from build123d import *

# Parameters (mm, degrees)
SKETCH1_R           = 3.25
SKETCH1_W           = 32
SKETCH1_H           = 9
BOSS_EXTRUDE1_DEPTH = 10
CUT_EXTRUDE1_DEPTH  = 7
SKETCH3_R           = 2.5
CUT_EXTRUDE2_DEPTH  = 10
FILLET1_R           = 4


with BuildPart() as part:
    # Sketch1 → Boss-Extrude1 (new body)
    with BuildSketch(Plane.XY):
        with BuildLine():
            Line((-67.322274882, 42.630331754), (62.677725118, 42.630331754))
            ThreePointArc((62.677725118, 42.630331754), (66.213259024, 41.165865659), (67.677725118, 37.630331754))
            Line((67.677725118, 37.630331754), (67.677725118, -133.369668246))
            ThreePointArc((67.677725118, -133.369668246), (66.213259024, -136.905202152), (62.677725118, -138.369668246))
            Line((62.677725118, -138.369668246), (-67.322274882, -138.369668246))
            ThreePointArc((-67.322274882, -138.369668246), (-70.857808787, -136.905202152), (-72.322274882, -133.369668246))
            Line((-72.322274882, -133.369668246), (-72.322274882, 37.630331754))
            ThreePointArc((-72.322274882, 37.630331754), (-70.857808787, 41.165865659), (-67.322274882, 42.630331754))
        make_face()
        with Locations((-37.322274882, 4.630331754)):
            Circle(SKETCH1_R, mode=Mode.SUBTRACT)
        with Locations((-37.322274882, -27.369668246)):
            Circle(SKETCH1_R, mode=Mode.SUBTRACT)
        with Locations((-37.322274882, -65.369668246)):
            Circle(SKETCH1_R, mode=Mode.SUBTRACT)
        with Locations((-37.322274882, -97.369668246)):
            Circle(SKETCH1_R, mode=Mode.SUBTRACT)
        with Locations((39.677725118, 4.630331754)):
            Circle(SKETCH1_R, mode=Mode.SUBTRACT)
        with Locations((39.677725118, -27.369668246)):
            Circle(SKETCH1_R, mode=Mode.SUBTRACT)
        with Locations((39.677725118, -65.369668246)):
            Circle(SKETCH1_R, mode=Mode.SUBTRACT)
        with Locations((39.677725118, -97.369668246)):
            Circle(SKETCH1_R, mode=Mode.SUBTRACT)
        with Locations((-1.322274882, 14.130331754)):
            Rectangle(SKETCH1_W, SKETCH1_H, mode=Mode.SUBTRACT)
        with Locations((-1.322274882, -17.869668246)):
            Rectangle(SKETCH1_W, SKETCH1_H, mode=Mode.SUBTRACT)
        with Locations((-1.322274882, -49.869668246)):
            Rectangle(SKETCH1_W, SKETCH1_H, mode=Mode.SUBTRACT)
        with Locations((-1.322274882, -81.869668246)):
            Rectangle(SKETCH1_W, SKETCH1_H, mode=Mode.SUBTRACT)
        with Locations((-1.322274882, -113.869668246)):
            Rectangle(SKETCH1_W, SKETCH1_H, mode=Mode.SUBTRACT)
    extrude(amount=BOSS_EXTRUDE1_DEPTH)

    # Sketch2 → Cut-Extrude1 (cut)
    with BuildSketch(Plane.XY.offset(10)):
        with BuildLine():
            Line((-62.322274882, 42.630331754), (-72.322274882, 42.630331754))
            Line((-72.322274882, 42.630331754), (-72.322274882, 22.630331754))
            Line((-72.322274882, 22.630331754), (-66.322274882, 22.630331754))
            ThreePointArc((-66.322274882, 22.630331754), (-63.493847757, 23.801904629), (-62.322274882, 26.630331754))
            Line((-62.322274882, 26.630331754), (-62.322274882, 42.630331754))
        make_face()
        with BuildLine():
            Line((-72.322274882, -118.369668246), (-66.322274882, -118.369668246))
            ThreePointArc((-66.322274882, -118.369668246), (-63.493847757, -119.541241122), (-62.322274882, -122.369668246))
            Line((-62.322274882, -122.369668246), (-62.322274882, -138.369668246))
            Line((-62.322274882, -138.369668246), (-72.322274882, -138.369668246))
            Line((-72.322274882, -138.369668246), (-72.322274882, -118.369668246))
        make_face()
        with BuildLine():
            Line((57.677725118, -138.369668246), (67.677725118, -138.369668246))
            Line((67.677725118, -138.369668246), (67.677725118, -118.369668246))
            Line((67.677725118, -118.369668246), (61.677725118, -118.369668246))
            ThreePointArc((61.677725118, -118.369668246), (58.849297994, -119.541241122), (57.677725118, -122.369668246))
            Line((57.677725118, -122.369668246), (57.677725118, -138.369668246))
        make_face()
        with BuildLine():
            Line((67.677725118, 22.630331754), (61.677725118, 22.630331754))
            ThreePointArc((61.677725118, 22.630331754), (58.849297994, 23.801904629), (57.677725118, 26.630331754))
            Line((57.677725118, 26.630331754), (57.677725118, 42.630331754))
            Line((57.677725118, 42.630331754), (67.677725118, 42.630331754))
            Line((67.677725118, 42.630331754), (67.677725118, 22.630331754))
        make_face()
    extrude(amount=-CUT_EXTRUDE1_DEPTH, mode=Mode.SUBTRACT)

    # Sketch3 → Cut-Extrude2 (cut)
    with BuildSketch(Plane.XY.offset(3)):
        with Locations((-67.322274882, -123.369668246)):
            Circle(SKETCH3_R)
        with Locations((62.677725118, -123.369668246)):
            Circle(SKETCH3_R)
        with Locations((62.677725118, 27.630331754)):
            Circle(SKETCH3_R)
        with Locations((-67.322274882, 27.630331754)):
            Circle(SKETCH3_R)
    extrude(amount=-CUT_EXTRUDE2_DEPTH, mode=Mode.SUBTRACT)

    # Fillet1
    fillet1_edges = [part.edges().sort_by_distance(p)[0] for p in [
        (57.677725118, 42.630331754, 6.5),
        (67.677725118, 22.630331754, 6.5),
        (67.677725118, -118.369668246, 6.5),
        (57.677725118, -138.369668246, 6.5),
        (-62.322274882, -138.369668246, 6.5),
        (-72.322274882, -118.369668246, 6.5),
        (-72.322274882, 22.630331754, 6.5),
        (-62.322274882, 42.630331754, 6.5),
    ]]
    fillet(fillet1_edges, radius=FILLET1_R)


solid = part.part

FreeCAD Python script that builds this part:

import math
import FreeCAD as App
import Part
import Sketcher

V = App.Vector


def edges_at(feature, points):
    """Names of the edges that pass closest to the given points."""
    edges = feature.Shape.Edges
    near = lambda p: min(range(len(edges)), key=lambda i: edges[i].distToShape(Part.Vertex(*p))[0])
    return sorted({f"Edge{near(p) + 1}" for p in points})


def add_polygon(sketch, points):
    """Adds a closed chain of lines whose ends are joined by coincident constraints."""
    first, n = sketch.GeometryCount, len(points)
    for a, b in zip(points, points[1:] + points[:1]):
        sketch.addGeometry(Part.LineSegment(App.Vector(*a, 0), App.Vector(*b, 0)), False)
    for i in range(n):
        sketch.addConstraint(Sketcher.Constraint("Coincident", first + i, 2, first + (i + 1) % n, 1))

doc = App.newDocument("Part")
params = doc.addObject("Spreadsheet::Sheet", "Params")
for row, (alias, value) in enumerate([
    ("sketch1_radius", "5 mm"),
    ("sketch1_diameter", "6.5 mm"),
    ("sketch1_width", "130 mm"),
    ("sketch1_width2", "32 mm"),
    ("sketch1_height", "171 mm"),
    ("pad1_length", "10 mm"),
    ("sketch2_radius", "4 mm"),
    ("sketch2_width", "10 mm"),
    ("sketch2_height", "20 mm"),
    ("pocket1_length", "7 mm"),
    ("sketch3_diameter", "5 mm"),
    ("pocket2_length", "10 mm"),
    ("fillet_radius", "4 mm"),
], start=1):
    params.set(f"A{row}", alias)
    params.set(f"B{row}", "=" + value)
    params.setAlias(f"B{row}", alias)

body = doc.addObject("PartDesign::Body", "Body")

sketch1 = body.newObject("Sketcher::SketchObject", "Sketch")
sketch1.AttachmentSupport = (doc.getObject("XY_Plane"), [""])
sketch1.MapMode = "FlatFace"
sketch1.addGeometry(Part.LineSegment(V(62.7, 42.6, 0), V(-67.3, 42.6, 0)), False)
sketch1.addGeometry(Part.ArcOfCircle(Part.Circle(V(-67.3, 37.6, 0), V(0, 0, 1), 5), math.radians(90), math.radians(180)), False)
sketch1.addGeometry(Part.LineSegment(V(-72.3, 37.6, 0), V(-72.3, -133.4, 0)), False)
sketch1.addGeometry(Part.ArcOfCircle(Part.Circle(V(-67.3, -133.4, 0), V(0, 0, 1), 5), math.radians(-180), math.radians(-90)), False)
sketch1.addGeometry(Part.LineSegment(V(-67.3, -138.4, 0), V(62.7, -138.4, 0)), False)
sketch1.addGeometry(Part.ArcOfCircle(Part.Circle(V(62.7, -133.4, 0), V(0, 0, 1), 5), math.radians(-90), math.radians(0)), False)
sketch1.addGeometry(Part.LineSegment(V(67.7, -133.4, 0), V(67.7, 37.6, 0)), False)
sketch1.addGeometry(Part.ArcOfCircle(Part.Circle(V(62.7, 37.6, 0), V(0, 0, 1), 5), math.radians(0), math.radians(90)), False)
sketch1.addGeometry(Part.Circle(V(39.7, -97.4, 0), V(0, 0, 1), 3.2), False)
sketch1.addGeometry(Part.Circle(V(39.7, -65.4, 0), V(0, 0, 1), 3.2), False)
add_polygon(sketch1, [(-17.3, -118.4), (-17.3, -109.4), (14.7, -109.4), (14.7, -118.4)])
sketch1.addGeometry(Part.Circle(V(-37.3, -97.4, 0), V(0, 0, 1), 3.2), False)
add_polygon(sketch1, [(-17.3, -86.4), (-17.3, -77.4), (14.7, -77.4), (14.7, -86.4)])
sketch1.addGeometry(Part.Circle(V(-37.3, -65.4, 0), V(0, 0, 1), 3.2), False)
sketch1.addGeometry(Part.Circle(V(39.7, -27.4, 0), V(0, 0, 1), 3.2), False)
sketch1.addGeometry(Part.Circle(V(39.7, 4.6, 0), V(0, 0, 1), 3.2), False)
add_polygon(sketch1, [(-17.3, -54.4), (-17.3, -45.4), (14.7, -45.4), (14.7, -54.4)])
add_polygon(sketch1, [(-17.3, -22.4), (-17.3, -13.4), (14.7, -13.4), (14.7, -22.4)])
sketch1.addGeometry(Part.Circle(V(-37.3, -27.4, 0), V(0, 0, 1), 3.2), False)
add_polygon(sketch1, [(-17.3, 9.6), (-17.3, 18.6), (14.7, 18.6), (14.7, 9.6)])
sketch1.addGeometry(Part.Circle(V(-37.3, 4.6, 0), V(0, 0, 1), 3.2), False)
sketch1.addConstraint(Sketcher.Constraint("Tangent", 0, 2, 1, 1))
sketch1.addConstraint(Sketcher.Constraint("Tangent", 1, 2, 2, 1))
sketch1.addConstraint(Sketcher.Constraint("Tangent", 2, 2, 3, 1))
sketch1.addConstraint(Sketcher.Constraint("Tangent", 3, 2, 4, 1))
sketch1.addConstraint(Sketcher.Constraint("Tangent", 4, 2, 5, 1))
sketch1.addConstraint(Sketcher.Constraint("Tangent", 5, 2, 6, 1))
sketch1.addConstraint(Sketcher.Constraint("Tangent", 6, 2, 7, 1))
sketch1.addConstraint(Sketcher.Constraint("Tangent", 7, 2, 0, 1))
sketch1.addConstraint(Sketcher.Constraint("Horizontal", 0))
sketch1.addConstraint(Sketcher.Constraint("Vertical", 2))
sketch1.addConstraint(Sketcher.Constraint("Horizontal", 4))
sketch1.addConstraint(Sketcher.Constraint("Vertical", 6))
sketch1.addConstraint(Sketcher.Constraint("Vertical", 10))
sketch1.addConstraint(Sketcher.Constraint("Horizontal", 11))
sketch1.addConstraint(Sketcher.Constraint("Vertical", 12))
sketch1.addConstraint(Sketcher.Constraint("Horizontal", 13))
sketch1.addConstraint(Sketcher.Constraint("Vertical", 15))
sketch1.addConstraint(Sketcher.Constraint("Horizontal", 16))
sketch1.addConstraint(Sketcher.Constraint("Vertical", 17))
sketch1.addConstraint(Sketcher.Constraint("Horizontal", 18))
sketch1.addConstraint(Sketcher.Constraint("Vertical", 22))
sketch1.addConstraint(Sketcher.Constraint("Horizontal", 23))
sketch1.addConstraint(Sketcher.Constraint("Vertical", 24))
sketch1.addConstraint(Sketcher.Constraint("Horizontal", 25))
sketch1.addConstraint(Sketcher.Constraint("Vertical", 26))
sketch1.addConstraint(Sketcher.Constraint("Horizontal", 27))
sketch1.addConstraint(Sketcher.Constraint("Vertical", 28))
sketch1.addConstraint(Sketcher.Constraint("Horizontal", 29))
sketch1.addConstraint(Sketcher.Constraint("Vertical", 31))
sketch1.addConstraint(Sketcher.Constraint("Horizontal", 32))
sketch1.addConstraint(Sketcher.Constraint("Vertical", 33))
sketch1.addConstraint(Sketcher.Constraint("Horizontal", 34))
sketch1.addConstraint(Sketcher.Constraint("Equal", 1, 3))
sketch1.addConstraint(Sketcher.Constraint("Equal", 3, 5))
sketch1.addConstraint(Sketcher.Constraint("Equal", 5, 7))
sketch1.addConstraint(Sketcher.Constraint("Equal", 8, 9))
sketch1.addConstraint(Sketcher.Constraint("Equal", 9, 14))
sketch1.addConstraint(Sketcher.Constraint("Equal", 14, 19))
sketch1.addConstraint(Sketcher.Constraint("Equal", 19, 20))
sketch1.addConstraint(Sketcher.Constraint("Equal", 20, 21))
sketch1.addConstraint(Sketcher.Constraint("Equal", 21, 30))
sketch1.addConstraint(Sketcher.Constraint("Equal", 30, 35))
sketch1.addConstraint(Sketcher.Constraint("Horizontal", 8, 3, 14, 3))
sketch1.addConstraint(Sketcher.Constraint("Horizontal", 9, 3, 19, 3))
sketch1.addConstraint(Sketcher.Constraint("Horizontal", 20, 3, 30, 3))
sketch1.addConstraint(Sketcher.Constraint("Horizontal", 21, 3, 35, 3))
sketch1.addConstraint(Sketcher.Constraint("Vertical", 8, 3, 9, 3))
sketch1.addConstraint(Sketcher.Constraint("Vertical", 14, 3, 19, 3))
sketch1.addConstraint(Sketcher.Constraint("Vertical", 9, 3, 20, 3))
sketch1.addConstraint(Sketcher.Constraint("Vertical", 20, 3, 21, 3))
sketch1.addConstraint(Sketcher.Constraint("Vertical", 19, 3, 30, 3))
sketch1.addConstraint(Sketcher.Constraint("Vertical", 30, 3, 35, 3))
sketch1.addConstraint(Sketcher.Constraint("Vertical", 13, 2, 15, 2))
sketch1.addConstraint(Sketcher.Constraint("Vertical", 12, 2, 16, 2))
sketch1.addConstraint(Sketcher.Constraint("Vertical", 18, 2, 22, 2))
sketch1.addConstraint(Sketcher.Constraint("Vertical", 17, 2, 23, 2))
sketch1.addConstraint(Sketcher.Constraint("Vertical", 25, 2, 26, 2))
sketch1.addConstraint(Sketcher.Constraint("Vertical", 24, 2, 27, 2))
sketch1.addConstraint(Sketcher.Constraint("Vertical", 29, 2, 31, 2))
sketch1.addConstraint(Sketcher.Constraint("Vertical", 28, 2, 32, 2))
sketch1.addConstraint(Sketcher.Constraint("Equal", 12, 15))
sketch1.addConstraint(Sketcher.Constraint("Equal", 17, 22))
sketch1.addConstraint(Sketcher.Constraint("Equal", 24, 26))
sketch1.addConstraint(Sketcher.Constraint("Equal", 28, 31))
sketch1.addConstraint(Sketcher.Constraint("Radius", 1, 5.0))
sketch1.addConstraint(Sketcher.Constraint("Diameter", 8, 6.5))
sketch1.addConstraint(Sketcher.Constraint("DistanceX", 0, 2, 0, 1, 130.0))
sketch1.addConstraint(Sketcher.Constraint("DistanceX", 11, 1, 11, 2, 32.0))
sketch1.addConstraint(Sketcher.Constraint("DistanceY", 2, 2, 2, 1, 171.0))
sketch1.addConstraint(Sketcher.Constraint("DistanceY", 10, 1, 10, 2, 9.0))
sketch1.addConstraint(Sketcher.Constraint("DistanceX", 8, 3, 5, 3, 23.0))
sketch1.addConstraint(Sketcher.Constraint("DistanceY", 5, 3, 8, 3, 36.0))
sketch1.addConstraint(Sketcher.Constraint("DistanceY", 8, 3, 9, 3, 32.0))
sketch1.addConstraint(Sketcher.Constraint("DistanceX", 3, 3, 14, 3, 30.0))
sketch1.addConstraint(Sketcher.Constraint("DistanceY", 9, 3, 20, 3, 38.0))
sketch1.addConstraint(Sketcher.Constraint("DistanceY", 20, 3, 21, 3, 32.0))
sketch1.addConstraint(Sketcher.Constraint("DistanceX", 14, 3, 10, 2, 20.0))
sketch1.addConstraint(Sketcher.Constraint("DistanceY", 10, 2, 14, 3, 12.0))
sketch1.addConstraint(Sketcher.Constraint("DistanceY", 15, 2, 19, 3, 12.0))
sketch1.addConstraint(Sketcher.Constraint("DistanceY", 22, 2, 30, 3, 18.0))
sketch1.addConstraint(Sketcher.Constraint("DistanceY", 30, 3, 26, 2, 14.0))
sketch1.addConstraint(Sketcher.Constraint("DistanceY", 35, 3, 31, 2, 14.0))
sketch1.addConstraint(Sketcher.Constraint("DistanceY", -1, 1, 1, 3, 37.630332))
sketch1.addConstraint(Sketcher.Constraint("DistanceX", 1, 3, -1, 1, 67.322275))
sketch1.setExpression("Constraints[84]", "Params.sketch1_radius")
sketch1.setExpression("Constraints[85]", "Params.sketch1_diameter")
sketch1.setExpression("Constraints[86]", "Params.sketch1_width")
sketch1.setExpression("Constraints[87]", "Params.sketch1_width2")
sketch1.setExpression("Constraints[88]", "Params.sketch1_height")
pad1 = body.newObject("PartDesign::Pad", "Pad")
pad1.Profile = sketch1
pad1.setExpression("Length", "Params.pad1_length")

sketch2 = body.newObject("Sketcher::SketchObject", "Sketch001")
sketch2.AttachmentSupport = (doc.getObject("XY_Plane"), [""])
sketch2.MapMode = "FlatFace"
sketch2.AttachmentOffset = App.Placement(V(0, 0, 10), App.Rotation())
sketch2.addGeometry(Part.LineSegment(V(-62.3, 42.6, 0), V(-72.3, 42.6, 0)), False)
sketch2.addGeometry(Part.LineSegment(V(-72.3, 42.6, 0), V(-72.3, 22.6, 0)), False)
sketch2.addGeometry(Part.LineSegment(V(-72.3, 22.6, 0), V(-66.3, 22.6, 0)), False)
sketch2.addGeometry(Part.ArcOfCircle(Part.Circle(V(-66.3, 26.6, 0), V(0, 0, 1), 4), math.radians(-90), math.radians(0)), False)
sketch2.addGeometry(Part.LineSegment(V(-62.3, 26.6, 0), V(-62.3, 42.6, 0)), False)
sketch2.addGeometry(Part.LineSegment(V(-66.3, -118.4, 0), V(-72.3, -118.4, 0)), False)
sketch2.addGeometry(Part.LineSegment(V(-72.3, -118.4, 0), V(-72.3, -138.4, 0)), False)
sketch2.addGeometry(Part.LineSegment(V(-72.3, -138.4, 0), V(-62.3, -138.4, 0)), False)
sketch2.addGeometry(Part.LineSegment(V(-62.3, -138.4, 0), V(-62.3, -122.4, 0)), False)
sketch2.addGeometry(Part.ArcOfCircle(Part.Circle(V(-66.3, -122.4, 0), V(0, 0, 1), 4), math.radians(0), math.radians(90)), False)
sketch2.addGeometry(Part.LineSegment(V(57.7, -138.4, 0), V(67.7, -138.4, 0)), False)
sketch2.addGeometry(Part.LineSegment(V(67.7, -138.4, 0), V(67.7, -118.4, 0)), False)
sketch2.addGeometry(Part.LineSegment(V(67.7, -118.4, 0), V(61.7, -118.4, 0)), False)
sketch2.addGeometry(Part.ArcOfCircle(Part.Circle(V(61.7, -122.4, 0), V(0, 0, 1), 4), math.radians(90), math.radians(180)), False)
sketch2.addGeometry(Part.LineSegment(V(57.7, -122.4, 0), V(57.7, -138.4, 0)), False)
sketch2.addGeometry(Part.LineSegment(V(61.7, 22.6, 0), V(67.7, 22.6, 0)), False)
sketch2.addGeometry(Part.LineSegment(V(67.7, 22.6, 0), V(67.7, 42.6, 0)), False)
sketch2.addGeometry(Part.LineSegment(V(67.7, 42.6, 0), V(57.7, 42.6, 0)), False)
sketch2.addGeometry(Part.LineSegment(V(57.7, 42.6, 0), V(57.7, 26.6, 0)), False)
sketch2.addGeometry(Part.ArcOfCircle(Part.Circle(V(61.7, 26.6, 0), V(0, 0, 1), 4), math.radians(-180), math.radians(-90)), False)
sketch2.addConstraint(Sketcher.Constraint("Coincident", 0, 2, 1, 1))
sketch2.addConstraint(Sketcher.Constraint("Coincident", 1, 2, 2, 1))
sketch2.addConstraint(Sketcher.Constraint("Tangent", 2, 2, 3, 1))
sketch2.addConstraint(Sketcher.Constraint("Tangent", 3, 2, 4, 1))
sketch2.addConstraint(Sketcher.Constraint("Coincident", 4, 2, 0, 1))
sketch2.addConstraint(Sketcher.Constraint("Coincident", 5, 2, 6, 1))
sketch2.addConstraint(Sketcher.Constraint("Coincident", 6, 2, 7, 1))
sketch2.addConstraint(Sketcher.Constraint("Coincident", 7, 2, 8, 1))
sketch2.addConstraint(Sketcher.Constraint("Tangent", 8, 2, 9, 1))
sketch2.addConstraint(Sketcher.Constraint("Tangent", 9, 2, 5, 1))
sketch2.addConstraint(Sketcher.Constraint("Coincident", 10, 2, 11, 1))
sketch2.addConstraint(Sketcher.Constraint("Coincident", 11, 2, 12, 1))
sketch2.addConstraint(Sketcher.Constraint("Tangent", 12, 2, 13, 1))
sketch2.addConstraint(Sketcher.Constraint("Tangent", 13, 2, 14, 1))
sketch2.addConstraint(Sketcher.Constraint("Coincident", 14, 2, 10, 1))
sketch2.addConstraint(Sketcher.Constraint("Coincident", 15, 2, 16, 1))
sketch2.addConstraint(Sketcher.Constraint("Coincident", 16, 2, 17, 1))
sketch2.addConstraint(Sketcher.Constraint("Coincident", 17, 2, 18, 1))
sketch2.addConstraint(Sketcher.Constraint("Tangent", 18, 2, 19, 1))
sketch2.addConstraint(Sketcher.Constraint("Tangent", 19, 2, 15, 1))
sketch2.addConstraint(Sketcher.Constraint("Horizontal", 0))
sketch2.addConstraint(Sketcher.Constraint("Vertical", 1))
sketch2.addConstraint(Sketcher.Constraint("Horizontal", 2))
sketch2.addConstraint(Sketcher.Constraint("Vertical", 4))
sketch2.addConstraint(Sketcher.Constraint("Horizontal", 5))
sketch2.addConstraint(Sketcher.Constraint("Vertical", 6))
sketch2.addConstraint(Sketcher.Constraint("Horizontal", 7))
sketch2.addConstraint(Sketcher.Constraint("Vertical", 8))
sketch2.addConstraint(Sketcher.Constraint("Horizontal", 10))
sketch2.addConstraint(Sketcher.Constraint("Vertical", 11))
sketch2.addConstraint(Sketcher.Constraint("Horizontal", 12))
sketch2.addConstraint(Sketcher.Constraint("Vertical", 14))
sketch2.addConstraint(Sketcher.Constraint("Horizontal", 15))
sketch2.addConstraint(Sketcher.Constraint("Vertical", 16))
sketch2.addConstraint(Sketcher.Constraint("Horizontal", 17))
sketch2.addConstraint(Sketcher.Constraint("Vertical", 18))
sketch2.addConstraint(Sketcher.Constraint("Equal", 3, 9))
sketch2.addConstraint(Sketcher.Constraint("Equal", 9, 13))
sketch2.addConstraint(Sketcher.Constraint("Equal", 13, 19))
sketch2.addConstraint(Sketcher.Constraint("Horizontal", 9, 3, 13, 3))
sketch2.addConstraint(Sketcher.Constraint("Horizontal", 3, 3, 19, 3))
sketch2.addConstraint(Sketcher.Constraint("Horizontal", 7, 2, 10, 2))
sketch2.addConstraint(Sketcher.Constraint("Horizontal", 4, 2, 16, 2))
sketch2.addConstraint(Sketcher.Constraint("Vertical", 3, 3, 9, 3))
sketch2.addConstraint(Sketcher.Constraint("Vertical", 13, 3, 19, 3))
sketch2.addConstraint(Sketcher.Constraint("Vertical", 1, 2, 5, 2))
sketch2.addConstraint(Sketcher.Constraint("Vertical", 11, 2, 15, 2))
sketch2.addConstraint(Sketcher.Constraint("Equal", 7, 10))
sketch2.addConstraint(Sketcher.Constraint("Equal", 1, 6))
sketch2.addConstraint(Sketcher.Constraint("Radius", 3, 4.0))
sketch2.addConstraint(Sketcher.Constraint("DistanceX", 0, 2, 0, 1, 10.0))
sketch2.addConstraint(Sketcher.Constraint("DistanceY", 1, 2, 1, 1, 20.0))
sketch2.addConstraint(Sketcher.Constraint("DistanceY", 9, 3, 3, 3, 149.0))
sketch2.addConstraint(Sketcher.Constraint("DistanceX", 9, 3, 13, 3, 128.0))
sketch2.addConstraint(Sketcher.Constraint("DistanceY", -1, 1, 3, 3, 26.630332))
sketch2.addConstraint(Sketcher.Constraint("DistanceX", 3, 3, -1, 1, 66.322275))
sketch2.setExpression("Constraints[49]", "Params.sketch2_radius")
sketch2.setExpression("Constraints[50]", "Params.sketch2_width")
sketch2.setExpression("Constraints[51]", "Params.sketch2_height")
pocket1 = body.newObject("PartDesign::Pocket", "Pocket")
pocket1.Profile = sketch2
pocket1.setExpression("Length", "Params.pocket1_length")

sketch3 = body.newObject("Sketcher::SketchObject", "Sketch002")
sketch3.AttachmentSupport = (doc.getObject("XY_Plane"), [""])
sketch3.MapMode = "FlatFace"
sketch3.AttachmentOffset = App.Placement(V(0, 0, 3), App.Rotation())
sketch3.addGeometry(Part.Circle(V(-67.3, -123.4, 0), V(0, 0, 1), 2.5), False)
sketch3.addGeometry(Part.Circle(V(62.7, -123.4, 0), V(0, 0, 1), 2.5), False)
sketch3.addGeometry(Part.Circle(V(62.7, 27.6, 0), V(0, 0, 1), 2.5), False)
sketch3.addGeometry(Part.Circle(V(-67.3, 27.6, 0), V(0, 0, 1), 2.5), False)
sketch3.addConstraint(Sketcher.Constraint("Equal", 0, 1))
sketch3.addConstraint(Sketcher.Constraint("Equal", 1, 2))
sketch3.addConstraint(Sketcher.Constraint("Equal", 2, 3))
sketch3.addConstraint(Sketcher.Constraint("Horizontal", 0, 3, 1, 3))
sketch3.addConstraint(Sketcher.Constraint("Horizontal", 2, 3, 3, 3))
sketch3.addConstraint(Sketcher.Constraint("Vertical", 1, 3, 2, 3))
sketch3.addConstraint(Sketcher.Constraint("Vertical", 0, 3, 3, 3))
sketch3.addConstraint(Sketcher.Constraint("Diameter", 0, 5.0))
sketch3.addConstraint(Sketcher.Constraint("DistanceX", 0, 3, 1, 3, 130.0))
sketch3.addConstraint(Sketcher.Constraint("DistanceY", 1, 3, 2, 3, 151.0))
sketch3.addConstraint(Sketcher.Constraint("DistanceY", 0, 3, -1, 1, 123.369668))
sketch3.addConstraint(Sketcher.Constraint("DistanceX", 0, 3, -1, 1, 67.322275))
sketch3.setExpression("Constraints[7]", "Params.sketch3_diameter")
pocket2 = body.newObject("PartDesign::Pocket", "Pocket001")
pocket2.Profile = sketch3
pocket2.setExpression("Length", "Params.pocket2_length")
doc.recompute()

fillet = body.newObject("PartDesign::Fillet", "Fillet")
fillet.Base = (pocket2, edges_at(pocket2, [
    (57.678, 42.63, 6.5),
    (67.678, 22.63, 6.5),
    (67.678, -118.37, 6.5),
    (57.678, -138.37, 6.5),
    (-62.322, -138.37, 6.5),
    (-72.322, -118.37, 6.5),
    (-72.322, 22.63, 6.5),
    (-62.322, 42.63, 6.5),
]))
fillet.setExpression("Radius", "Params.fillet_radius")

doc.recompute()
